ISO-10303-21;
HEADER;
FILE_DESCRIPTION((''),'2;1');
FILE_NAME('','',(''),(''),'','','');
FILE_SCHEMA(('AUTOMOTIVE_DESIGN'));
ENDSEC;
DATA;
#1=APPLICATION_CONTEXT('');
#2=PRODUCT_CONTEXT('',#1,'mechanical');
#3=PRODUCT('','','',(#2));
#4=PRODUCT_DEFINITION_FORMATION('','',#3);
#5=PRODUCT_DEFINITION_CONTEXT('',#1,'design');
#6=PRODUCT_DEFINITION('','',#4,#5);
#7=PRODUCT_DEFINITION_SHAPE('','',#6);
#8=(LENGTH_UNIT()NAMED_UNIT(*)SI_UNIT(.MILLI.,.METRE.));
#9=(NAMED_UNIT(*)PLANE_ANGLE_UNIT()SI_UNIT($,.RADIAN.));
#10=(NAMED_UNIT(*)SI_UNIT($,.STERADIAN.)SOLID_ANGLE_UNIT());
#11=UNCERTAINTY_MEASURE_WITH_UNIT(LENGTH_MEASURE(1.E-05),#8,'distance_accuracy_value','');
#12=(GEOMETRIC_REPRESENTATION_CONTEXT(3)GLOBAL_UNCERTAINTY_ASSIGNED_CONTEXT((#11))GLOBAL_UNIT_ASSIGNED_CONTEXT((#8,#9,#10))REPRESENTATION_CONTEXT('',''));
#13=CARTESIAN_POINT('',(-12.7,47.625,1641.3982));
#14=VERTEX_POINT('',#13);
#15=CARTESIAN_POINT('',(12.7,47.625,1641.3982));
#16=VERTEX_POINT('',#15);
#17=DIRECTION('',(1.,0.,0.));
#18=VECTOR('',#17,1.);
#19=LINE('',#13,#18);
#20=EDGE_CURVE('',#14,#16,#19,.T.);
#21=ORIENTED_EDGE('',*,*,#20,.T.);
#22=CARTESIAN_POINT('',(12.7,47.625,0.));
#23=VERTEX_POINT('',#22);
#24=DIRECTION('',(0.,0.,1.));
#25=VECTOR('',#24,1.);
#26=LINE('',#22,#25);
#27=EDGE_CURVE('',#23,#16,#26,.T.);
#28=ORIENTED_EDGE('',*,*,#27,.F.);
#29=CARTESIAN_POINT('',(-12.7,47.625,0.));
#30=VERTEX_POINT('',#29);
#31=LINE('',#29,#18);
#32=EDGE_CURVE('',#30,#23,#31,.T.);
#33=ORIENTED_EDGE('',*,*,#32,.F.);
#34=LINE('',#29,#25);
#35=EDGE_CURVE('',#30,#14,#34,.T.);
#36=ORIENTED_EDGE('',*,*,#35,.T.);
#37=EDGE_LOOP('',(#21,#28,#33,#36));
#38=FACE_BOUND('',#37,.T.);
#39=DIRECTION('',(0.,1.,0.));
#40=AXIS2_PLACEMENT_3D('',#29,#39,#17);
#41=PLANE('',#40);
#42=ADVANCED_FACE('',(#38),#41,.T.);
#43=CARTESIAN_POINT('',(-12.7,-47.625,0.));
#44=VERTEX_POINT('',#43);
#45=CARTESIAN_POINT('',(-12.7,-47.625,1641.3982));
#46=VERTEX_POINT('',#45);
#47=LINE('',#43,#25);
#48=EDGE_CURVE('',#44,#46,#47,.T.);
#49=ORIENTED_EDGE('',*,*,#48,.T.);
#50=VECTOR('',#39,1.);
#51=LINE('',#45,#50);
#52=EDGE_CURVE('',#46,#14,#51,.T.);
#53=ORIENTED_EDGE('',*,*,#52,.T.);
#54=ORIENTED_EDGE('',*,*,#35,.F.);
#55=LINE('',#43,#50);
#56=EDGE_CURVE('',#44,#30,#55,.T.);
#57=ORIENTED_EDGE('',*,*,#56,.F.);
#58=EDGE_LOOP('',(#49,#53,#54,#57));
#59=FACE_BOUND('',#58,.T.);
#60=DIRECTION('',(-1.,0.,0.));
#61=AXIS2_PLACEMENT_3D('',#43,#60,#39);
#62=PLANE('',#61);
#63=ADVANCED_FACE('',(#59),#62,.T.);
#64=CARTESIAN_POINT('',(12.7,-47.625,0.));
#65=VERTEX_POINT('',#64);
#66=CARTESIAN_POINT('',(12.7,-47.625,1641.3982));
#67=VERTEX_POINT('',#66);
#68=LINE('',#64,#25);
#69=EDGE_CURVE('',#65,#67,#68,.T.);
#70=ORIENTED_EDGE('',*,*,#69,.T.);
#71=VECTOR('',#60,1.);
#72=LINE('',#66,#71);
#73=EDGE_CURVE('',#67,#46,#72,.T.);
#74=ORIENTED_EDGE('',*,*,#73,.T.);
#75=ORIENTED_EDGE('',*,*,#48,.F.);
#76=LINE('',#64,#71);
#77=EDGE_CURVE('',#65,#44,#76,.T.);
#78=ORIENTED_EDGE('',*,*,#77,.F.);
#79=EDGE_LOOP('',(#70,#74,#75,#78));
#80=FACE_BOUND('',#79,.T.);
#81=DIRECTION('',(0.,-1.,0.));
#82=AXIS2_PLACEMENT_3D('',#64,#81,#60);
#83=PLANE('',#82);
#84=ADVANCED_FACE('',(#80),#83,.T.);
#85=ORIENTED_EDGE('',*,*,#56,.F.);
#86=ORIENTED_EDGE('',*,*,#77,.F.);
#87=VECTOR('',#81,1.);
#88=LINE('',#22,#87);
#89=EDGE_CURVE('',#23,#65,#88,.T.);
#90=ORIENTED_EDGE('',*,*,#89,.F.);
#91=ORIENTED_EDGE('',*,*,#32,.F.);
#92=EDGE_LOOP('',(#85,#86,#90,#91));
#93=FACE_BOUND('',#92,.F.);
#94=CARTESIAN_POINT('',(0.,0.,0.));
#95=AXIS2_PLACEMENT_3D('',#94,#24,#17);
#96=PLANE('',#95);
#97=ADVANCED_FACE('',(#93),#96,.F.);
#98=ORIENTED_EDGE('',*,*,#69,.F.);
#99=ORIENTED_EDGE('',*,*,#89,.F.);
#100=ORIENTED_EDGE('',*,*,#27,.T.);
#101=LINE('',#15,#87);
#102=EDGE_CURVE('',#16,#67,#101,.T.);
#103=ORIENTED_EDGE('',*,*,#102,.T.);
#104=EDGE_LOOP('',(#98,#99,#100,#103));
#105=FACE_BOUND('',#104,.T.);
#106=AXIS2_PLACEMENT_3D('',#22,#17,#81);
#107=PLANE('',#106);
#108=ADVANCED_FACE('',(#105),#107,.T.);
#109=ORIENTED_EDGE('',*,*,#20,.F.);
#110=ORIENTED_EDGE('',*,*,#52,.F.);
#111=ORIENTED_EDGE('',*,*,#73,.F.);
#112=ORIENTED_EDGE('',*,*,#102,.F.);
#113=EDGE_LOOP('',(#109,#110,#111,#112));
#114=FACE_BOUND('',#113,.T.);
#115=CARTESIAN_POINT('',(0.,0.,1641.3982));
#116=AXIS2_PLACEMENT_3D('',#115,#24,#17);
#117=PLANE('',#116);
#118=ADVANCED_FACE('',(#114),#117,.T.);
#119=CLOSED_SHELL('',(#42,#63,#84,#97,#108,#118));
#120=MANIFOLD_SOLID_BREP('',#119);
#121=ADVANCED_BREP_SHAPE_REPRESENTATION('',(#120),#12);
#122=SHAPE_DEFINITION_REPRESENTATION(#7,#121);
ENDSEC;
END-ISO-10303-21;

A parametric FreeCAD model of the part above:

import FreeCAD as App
import Part
import Sketcher

V = App.Vector
Q = App.Units.Quantity

doc = App.newDocument("Part")
params = doc.addObject("Spreadsheet::Sheet", "Params")
for row, (alias, value) in enumerate([
    ("sketch1_width", "1 in"),
    ("sketch1_height", "3.75 in"),
    ("pad1_length", "1641.3982 mm"),
], start=1):
    params.set(f"A{row}", alias)
    params.set(f"B{row}", "=" + value)
    params.setAlias(f"B{row}", alias)

body = doc.addObject("PartDesign::Body", "Body")

sketch1 = body.newObject("Sketcher::SketchObject", "Sketch")
sketch1.AttachmentSupport = (doc.getObject("XY_Plane"), [""])
sketch1.MapMode = "FlatFace"
sketch1.addGeometry(Part.LineSegment(V(-13, -48, 0), V(13, -48, 0)), False)
sketch1.addGeometry(Part.LineSegment(V(13, -48, 0), V(13, 48, 0)), False)
sketch1.addGeometry(Part.LineSegment(V(13, 48, 0), V(-13, 48, 0)), False)
sketch1.addGeometry(Part.LineSegment(V(-13, 48, 0), V(-13, -48, 0)), False)
sketch1.addConstraint(Sketcher.Constraint("Coincident", 0, 2, 1, 1))
sketch1.addConstraint(Sketcher.Constraint("Coincident", 1, 2, 2, 1))
sketch1.addConstraint(Sketcher.Constraint("Coincident", 2, 2, 3, 1))
sketch1.addConstraint(Sketcher.Constraint("Coincident", 3, 2, 0, 1))
sketch1.addConstraint(Sketcher.Constraint("Horizontal", 0))
sketch1.addConstraint(Sketcher.Constraint("Vertical", 1))
sketch1.addConstraint(Sketcher.Constraint("Horizontal", 2))
sketch1.addConstraint(Sketcher.Constraint("Vertical", 3))
sketch1.addConstraint(Sketcher.Constraint("Symmetric", 0, 2, 2, 2, -1, 1))
sketch1.addConstraint(Sketcher.Constraint("DistanceX", 0, 1, 0, 2, Q("1 in")))
sketch1.addConstraint(Sketcher.Constraint("DistanceY", 1, 1, 1, 2, Q("3.75 in")))
sketch1.setExpression("Constraints[9]", "Params.sketch1_width")
sketch1.setExpression("Constraints[10]", "Params.sketch1_height")
pad1 = body.newObject("PartDesign::Pad", "Pad")
pad1.Profile = sketch1
pad1.setExpression("Length", "Params.pad1_length")

doc.recompute()
